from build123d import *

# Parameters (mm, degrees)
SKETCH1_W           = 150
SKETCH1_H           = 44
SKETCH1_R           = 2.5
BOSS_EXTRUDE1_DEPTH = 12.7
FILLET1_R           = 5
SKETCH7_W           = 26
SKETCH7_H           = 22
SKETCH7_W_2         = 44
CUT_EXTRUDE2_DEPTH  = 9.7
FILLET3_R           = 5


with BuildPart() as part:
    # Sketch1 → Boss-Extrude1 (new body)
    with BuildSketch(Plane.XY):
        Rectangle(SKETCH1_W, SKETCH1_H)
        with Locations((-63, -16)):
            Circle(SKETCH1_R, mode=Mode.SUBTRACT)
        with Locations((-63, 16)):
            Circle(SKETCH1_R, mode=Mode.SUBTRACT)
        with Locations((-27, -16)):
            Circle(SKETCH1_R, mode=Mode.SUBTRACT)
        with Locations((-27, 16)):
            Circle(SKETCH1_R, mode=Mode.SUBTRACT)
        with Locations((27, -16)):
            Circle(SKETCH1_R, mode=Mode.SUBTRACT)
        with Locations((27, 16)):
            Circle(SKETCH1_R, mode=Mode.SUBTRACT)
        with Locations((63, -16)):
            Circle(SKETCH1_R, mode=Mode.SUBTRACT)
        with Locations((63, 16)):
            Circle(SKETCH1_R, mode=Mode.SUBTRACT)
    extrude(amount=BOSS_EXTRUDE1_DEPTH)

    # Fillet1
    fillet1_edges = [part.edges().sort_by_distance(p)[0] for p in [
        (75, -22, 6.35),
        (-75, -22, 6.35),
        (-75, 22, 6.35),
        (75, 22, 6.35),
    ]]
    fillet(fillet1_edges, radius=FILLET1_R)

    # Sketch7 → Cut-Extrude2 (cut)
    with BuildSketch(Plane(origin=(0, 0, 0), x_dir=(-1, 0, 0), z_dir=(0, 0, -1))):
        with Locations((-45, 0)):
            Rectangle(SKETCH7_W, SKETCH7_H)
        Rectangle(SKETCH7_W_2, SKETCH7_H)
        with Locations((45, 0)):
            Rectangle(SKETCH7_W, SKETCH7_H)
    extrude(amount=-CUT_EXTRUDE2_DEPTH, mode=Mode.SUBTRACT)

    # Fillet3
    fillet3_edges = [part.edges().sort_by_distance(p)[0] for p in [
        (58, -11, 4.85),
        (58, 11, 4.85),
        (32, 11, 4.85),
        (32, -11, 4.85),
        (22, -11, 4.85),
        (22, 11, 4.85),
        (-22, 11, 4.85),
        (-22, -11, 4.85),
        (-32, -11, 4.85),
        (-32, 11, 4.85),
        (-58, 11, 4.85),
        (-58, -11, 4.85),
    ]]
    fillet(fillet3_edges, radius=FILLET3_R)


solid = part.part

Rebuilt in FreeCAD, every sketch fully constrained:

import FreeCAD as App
import Part
import Sketcher


def edges_at(feature, points):
    """Names of the edges that pass closest to the given points."""
    edges = feature.Shape.Edges
    near = lambda p: min(range(len(edges)), key=lambda i: edges[i].distToShape(Part.Vertex(*p))[0])
    return sorted({f"Edge{near(p) + 1}" for p in points})

doc = App.newDocument("Part")
body = doc.addObject("PartDesign::Body", "Body")

# Sketch on XY plane
sketch1 = body.newObject("Sketcher::SketchObject", "Sketch")
sketch1.AttachmentSupport = (doc.getObject("XY_Plane"), [""])
sketch1.MapMode = "FlatFace"
sketch1.addGeometry([
    Part.LineSegment(App.Vector(-75, 22, 0), App.Vector(-75, -22, 0)),  # 0
    Part.LineSegment(App.Vector(-75, -22, 0), App.Vector(75, -22, 0)),  # 1
    Part.LineSegment(App.Vector(75, -22, 0), App.Vector(75, 22, 0)),  # 2
    Part.LineSegment(App.Vector(75, 22, 0), App.Vector(-75, 22, 0)),  # 3
    Part.Circle(App.Vector(-63, -16, 0), App.Vector(0, 0, 1), 2.5),  # 4
    Part.Circle(App.Vector(-27, -16, 0), App.Vector(0, 0, 1), 2.5),  # 5
    Part.Circle(App.Vector(27, -16, 0), App.Vector(0, 0, 1), 2.5),  # 6
    Part.Circle(App.Vector(63, -16, 0), App.Vector(0, 0, 1), 2.5),  # 7
    Part.Circle(App.Vector(-63, 16, 0), App.Vector(0, 0, 1), 2.5),  # 8
    Part.Circle(App.Vector(-27, 16, 0), App.Vector(0, 0, 1), 2.5),  # 9
    Part.Circle(App.Vector(27, 16, 0), App.Vector(0, 0, 1), 2.5),  # 10
    Part.Circle(App.Vector(63, 16, 0), App.Vector(0, 0, 1), 2.5),  # 11
], False)
sketch1.addConstraint([
    Sketcher.Constraint("Coincident", 0, 2, 1, 1),
    Sketcher.Constraint("Coincident", 1, 2, 2, 1),
    Sketcher.Constraint("Coincident", 2, 2, 3, 1),
    Sketcher.Constraint("Coincident", 3, 2, 0, 1),
    Sketcher.Constraint("Vertical", 0),
    Sketcher.Constraint("Horizontal", 1),
    Sketcher.Constraint("Vertical", 2),
    Sketcher.Constraint("Horizontal", 3),
    Sketcher.Constraint("Equal", 4, 5),
    Sketcher.Constraint("Equal", 5, 6),
    Sketcher.Constraint("Equal", 6, 7),
    Sketcher.Constraint("Equal", 7, 8),
    Sketcher.Constraint("Equal", 8, 9),
    Sketcher.Constraint("Equal", 9, 10),
    Sketcher.Constraint("Equal", 10, 11),
    Sketcher.Constraint("Symmetric", 7, 3, 8, 3, -1, 1),
    Sketcher.Constraint("Symmetric", 6, 3, 9, 3, -1, 1),
    Sketcher.Constraint("Symmetric", 5, 3, 10, 3, -1, 1),
    Sketcher.Constraint("Symmetric", 4, 3, 11, 3, -1, 1),
    Sketcher.Constraint("Symmetric", 0, 2, 2, 2, -1, 1),
    Sketcher.Constraint("Symmetric", 5, 3, 6, 3, -2),
    Sketcher.Constraint("Symmetric", 4, 3, 7, 3, -2),
    Sketcher.Constraint("Horizontal", 4, 3, 5, 3),
    Sketcher.Constraint("Diameter", 4, 5.0),
    Sketcher.Constraint("DistanceX", 1, 1, 1, 2, 150.0),
    Sketcher.Constraint("DistanceY", 0, 2, 0, 1, 44.0),
    Sketcher.Constraint("DistanceX", 4, 3, -1, 1, 63.0),
    Sketcher.Constraint("DistanceY", 4, 3, -1, 1, 16.0),
    Sketcher.Constraint("DistanceX", 5, 3, -1, 1, 27.0),
])
pad1 = body.newObject("PartDesign::Pad", "Pad")
pad1.Profile = sketch1
pad1.Length = 12.7
doc.recompute()

fillet = body.newObject("PartDesign::Fillet", "Fillet")
fillet.Base = (pad1, edges_at(pad1, [
    (75, -22, 6.35),
    (-75, -22, 6.35),
    (-75, 22, 6.35),
    (75, 22, 6.35),
]))
fillet.Radius = 5

# Sketch on XY plane
sketch2 = body.newObject("Sketcher::SketchObject", "Sketch001")
sketch2.AttachmentSupport = (doc.getObject("XY_Plane"), [""])
sketch2.MapMode = "FlatFace"
sketch2.addGeometry([
    Part.LineSegment(App.Vector(58, 11, 0), App.Vector(58, -11, 0)),  # 0
    Part.LineSegment(App.Vector(58, -11, 0), App.Vector(32, -11, 0)),  # 1
    Part.LineSegment(App.Vector(32, -11, 0), App.Vector(32, 11, 0)),  # 2
    Part.LineSegment(App.Vector(32, 11, 0), App.Vector(58, 11, 0)),  # 3
    Part.LineSegment(App.Vector(22, 11, 0), App.Vector(22, -11, 0)),  # 4
    Part.LineSegment(App.Vector(22, -11, 0), App.Vector(-22, -11, 0)),  # 5
    Part.LineSegment(App.Vector(-22, -11, 0), App.Vector(-22, 11, 0)),  # 6
    Part.LineSegment(App.Vector(-22, 11, 0), App.Vector(22, 11, 0)),  # 7
    Part.LineSegment(App.Vector(-32, 11, 0), App.Vector(-32, -11, 0)),  # 8
    Part.LineSegment(App.Vector(-32, -11, 0), App.Vector(-58, -11, 0)),  # 9
    Part.LineSegment(App.Vector(-58, -11, 0), App.Vector(-58, 11, 0)),  # 10
    Part.LineSegment(App.Vector(-58, 11, 0), App.Vector(-32, 11, 0)),  # 11
], False)
sketch2.addConstraint([
    Sketcher.Constraint("Coincident", 0, 2, 1, 1),
    Sketcher.Constraint("Coincident", 1, 2, 2, 1),
    Sketcher.Constraint("Coincident", 2, 2, 3, 1),
    Sketcher.Constraint("Coincident", 3, 2, 0, 1),
    Sketcher.Constraint("Coincident", 4, 2, 5, 1),
    Sketcher.Constraint("Coincident", 5, 2, 6, 1),
    Sketcher.Constraint("Coincident", 6, 2, 7, 1),
    Sketcher.Constraint("Coincident", 7, 2, 4, 1),
    Sketcher.Constraint("Coincident", 8, 2, 9, 1),
    Sketcher.Constraint("Coincident", 9, 2, 10, 1),
    Sketcher.Constraint("Coincident", 10, 2, 11, 1),
    Sketcher.Constraint("Coincident", 11, 2, 8, 1),
    Sketcher.Constraint("Vertical", 0),
    Sketcher.Constraint("Horizontal", 1),
    Sketcher.Constraint("Vertical", 2),
    Sketcher.Constraint("Horizontal", 3),
    Sketcher.Constraint("Vertical", 4),
    Sketcher.Constraint("Horizontal", 5),
    Sketcher.Constraint("Vertical", 6),
    Sketcher.Constraint("Horizontal", 7),
    Sketcher.Constraint("Vertical", 8),
    Sketcher.Constraint("Horizontal", 9),
    Sketcher.Constraint("Vertical", 10),
    Sketcher.Constraint("Horizontal", 11),
    Sketcher.Constraint("Symmetric", 4, 2, 6, 2, -1, 1),
    Sketcher.Constraint("Symmetric", 2, 2, 8, 2, -1, 1),
    Sketcher.Constraint("Symmetric", 0, 2, 10, 2, -1, 1),
    Sketcher.Constraint("Horizontal", 1, 2, 4, 2),
    Sketcher.Constraint("Horizontal", 3, 2, 6, 2),
    Sketcher.Constraint("DistanceX", 1, 2, 1, 1, 26.0),
    Sketcher.Constraint("DistanceX", 5, 2, 5, 1, 44.0),
    Sketcher.Constraint("DistanceY", 0, 2, 0, 1, 22.0),
    Sketcher.Constraint("DistanceX", -1, 1, 0, 2, 58.0),
])
pocket1 = body.newObject("PartDesign::Pocket", "Pocket")
pocket1.Profile = sketch2
pocket1.Length = 9.7
pocket1.Reversed = True
doc.recompute()

fillet2 = body.newObject("PartDesign::Fillet", "Fillet001")
fillet2.Base = (pocket1, edges_at(pocket1, [
    (58, -11, 4.85),
    (58, 11, 4.85),
    (32, 11, 4.85),
    (32, -11, 4.85),
    (22, -11, 4.85),
    (22, 11, 4.85),
    (-22, 11, 4.85),
    (-22, -11, 4.85),
    (-32, -11, 4.85),
    (-32, 11, 4.85),
    (-58, 11, 4.85),
    (-58, -11, 4.85),
]))
fillet2.Radius = 5

doc.recompute()
